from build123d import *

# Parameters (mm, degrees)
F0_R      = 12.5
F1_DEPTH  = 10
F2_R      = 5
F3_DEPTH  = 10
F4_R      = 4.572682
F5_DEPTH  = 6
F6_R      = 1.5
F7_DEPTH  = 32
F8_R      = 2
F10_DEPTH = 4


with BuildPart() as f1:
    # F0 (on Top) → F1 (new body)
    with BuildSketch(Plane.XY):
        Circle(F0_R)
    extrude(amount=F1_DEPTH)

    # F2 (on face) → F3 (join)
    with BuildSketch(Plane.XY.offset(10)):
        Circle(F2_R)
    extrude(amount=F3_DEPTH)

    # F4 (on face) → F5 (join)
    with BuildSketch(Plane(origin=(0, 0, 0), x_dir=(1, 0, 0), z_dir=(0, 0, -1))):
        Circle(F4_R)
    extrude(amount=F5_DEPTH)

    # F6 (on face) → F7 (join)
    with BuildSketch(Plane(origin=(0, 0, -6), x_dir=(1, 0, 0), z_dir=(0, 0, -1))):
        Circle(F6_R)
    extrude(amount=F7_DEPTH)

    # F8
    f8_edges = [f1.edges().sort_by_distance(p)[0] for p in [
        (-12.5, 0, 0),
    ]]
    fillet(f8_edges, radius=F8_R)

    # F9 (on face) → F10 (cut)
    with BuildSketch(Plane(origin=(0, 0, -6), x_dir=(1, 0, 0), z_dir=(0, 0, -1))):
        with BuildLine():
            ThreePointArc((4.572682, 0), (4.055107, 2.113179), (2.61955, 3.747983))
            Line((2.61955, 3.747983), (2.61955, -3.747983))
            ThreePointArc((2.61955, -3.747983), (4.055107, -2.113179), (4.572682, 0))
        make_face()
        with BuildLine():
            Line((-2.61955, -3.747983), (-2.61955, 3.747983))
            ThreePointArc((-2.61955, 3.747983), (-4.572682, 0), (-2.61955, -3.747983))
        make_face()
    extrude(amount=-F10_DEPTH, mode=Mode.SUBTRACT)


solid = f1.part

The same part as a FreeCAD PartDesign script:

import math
import FreeCAD as App
import Part
import Sketcher

V = App.Vector


def edges_at(feature, points):
    """Names of the edges that pass closest to the given points."""
    edges = feature.Shape.Edges
    near = lambda p: min(range(len(edges)), key=lambda i: edges[i].distToShape(Part.Vertex(*p))[0])
    return sorted({f"Edge{near(p) + 1}" for p in points})

doc = App.newDocument("Part")
body = doc.addObject("PartDesign::Body", "Body")

# Sketch on XY plane
sketch1 = body.newObject("Sketcher::SketchObject", "Sketch")
sketch1.AttachmentSupport = (doc.getObject("XY_Plane"), [""])
sketch1.MapMode = "FlatFace"
sketch1.addGeometry(Part.Circle(V(0, 0, 0), V(0, 0, 1), 12.5), False)
sketch1.addConstraint(Sketcher.Constraint("Coincident", 0, 3, -1, 1))
sketch1.addConstraint(Sketcher.Constraint("Diameter", 0, 25.0))
pad1 = body.newObject("PartDesign::Pad", "Pad")
pad1.Profile = sketch1
pad1.Length = 10

# Sketch on XY plane
sketch2 = body.newObject("Sketcher::SketchObject", "Sketch001")
sketch2.AttachmentSupport = (doc.getObject("XY_Plane"), [""])
sketch2.MapMode = "FlatFace"
sketch2.AttachmentOffset = App.Placement(V(0, 0, 10), App.Rotation())
sketch2.addGeometry(Part.Circle(V(0, 0, 0), V(0, 0, 1), 5), False)
sketch2.addConstraint(Sketcher.Constraint("Coincident", 0, 3, -1, 1))
sketch2.addConstraint(Sketcher.Constraint("Diameter", 0, 10.0))
pad2 = body.newObject("PartDesign::Pad", "Pad001")
pad2.Profile = sketch2
pad2.Length = 10

# Sketch on XY plane
sketch3 = body.newObject("Sketcher::SketchObject", "Sketch002")
sketch3.AttachmentSupport = (doc.getObject("XY_Plane"), [""])
sketch3.MapMode = "FlatFace"
sketch3.addGeometry(Part.Circle(V(0, 0, 0), V(0, 0, 1), 4.572682), False)
sketch3.addConstraint(Sketcher.Constraint("Coincident", 0, 3, -1, 1))
sketch3.addConstraint(Sketcher.Constraint("Diameter", 0, 9.145364))
pad3 = body.newObject("PartDesign::Pad", "Pad002")
pad3.Profile = sketch3
pad3.Length = 6
pad3.Reversed = True

# Sketch on XY plane
sketch4 = body.newObject("Sketcher::SketchObject", "Sketch003")
sketch4.AttachmentSupport = (doc.getObject("XY_Plane"), [""])
sketch4.MapMode = "FlatFace"
sketch4.AttachmentOffset = App.Placement(V(0, 0, -6), App.Rotation())
sketch4.addGeometry(Part.Circle(V(0, 0, 0), V(0, 0, 1), 1.5), False)
sketch4.addConstraint(Sketcher.Constraint("Coincident", 0, 3, -1, 1))
sketch4.addConstraint(Sketcher.Constraint("Diameter", 0, 3.0))
pad4 = body.newObject("PartDesign::Pad", "Pad003")
pad4.Profile = sketch4
pad4.Length = 32
pad4.Reversed = True
doc.recompute()

fillet = body.newObject("PartDesign::Fillet", "Fillet")
fillet.Base = (pad4, edges_at(pad4, [(-12.5, 0, 0)]))
fillet.Radius = 2

# Sketch on XY plane
sketch5 = body.newObject("Sketcher::SketchObject", "Sketch004")
sketch5.AttachmentSupport = (doc.getObject("XY_Plane"), [""])
sketch5.MapMode = "FlatFace"
sketch5.AttachmentOffset = App.Placement(V(0, 0, -6), App.Rotation())
sketch5.addGeometry(Part.ArcOfCircle(Part.Circle(V(-0.000001, 0.000001, 0), V(0, 0, 1), 4.572683), math.radians(-55.049425), math.radians(-0.000011)), False)
sketch5.addGeometry(Part.LineSegment(V(2.61955, -3.747983, 0), V(2.61955, 3.747983, 0)), False)
sketch5.addGeometry(Part.ArcOfCircle(Part.Circle(V(-0.000001, -0.000001, 0), V(0, 0, 1), 4.572683), math.radians(0.000011), math.radians(55.049425)), False)
sketch5.addGeometry(Part.LineSegment(V(-2.61955, 3.747983, 0), V(-2.61955, -3.747983, 0)), False)
sketch5.addGeometry(Part.ArcOfCircle(Part.Circle(V(0, 0, 0), V(0, 0, 1), 4.572682), math.radians(124.950564), math.radians(235.049436)), False)
sketch5.addConstraint(Sketcher.Constraint("Coincident", 0, 1, 1, 1))
sketch5.addConstraint(Sketcher.Constraint("Coincident", 1, 2, 2, 2))
sketch5.addConstraint(Sketcher.Constraint("Tangent", 2, 1, 0, 2))
sketch5.addConstraint(Sketcher.Constraint("Coincident", 3, 1, 4, 1))
sketch5.addConstraint(Sketcher.Constraint("Coincident", 4, 2, 3, 2))
sketch5.addConstraint(Sketcher.Constraint("Vertical", 1))
sketch5.addConstraint(Sketcher.Constraint("Vertical", 3))
sketch5.addConstraint(Sketcher.Constraint("Coincident", 0, 3, -1, 1))
sketch5.addConstraint(Sketcher.Constraint("Coincident", 4, 3, -1, 1))
sketch5.addConstraint(Sketcher.Constraint("Equal", 0, 2))
sketch5.addConstraint(Sketcher.Constraint("Equal", 2, 4))
sketch5.addConstraint(Sketcher.Constraint("PointOnObject", 2, 1, -1))
sketch5.addConstraint(Sketcher.Constraint("Horizontal", 1, 2, 3, 1))
sketch5.addConstraint(Sketcher.Constraint("Radius", 4, 4.572682))
sketch5.addConstraint(Sketcher.Constraint("DistanceX", 3, 1, 1, 2, 5.2391))
pocket1 = body.newObject("PartDesign::Pocket", "Pocket")
pocket1.Profile = sketch5
pocket1.Length = 4
pocket1.Reversed = True

doc.recompute()
